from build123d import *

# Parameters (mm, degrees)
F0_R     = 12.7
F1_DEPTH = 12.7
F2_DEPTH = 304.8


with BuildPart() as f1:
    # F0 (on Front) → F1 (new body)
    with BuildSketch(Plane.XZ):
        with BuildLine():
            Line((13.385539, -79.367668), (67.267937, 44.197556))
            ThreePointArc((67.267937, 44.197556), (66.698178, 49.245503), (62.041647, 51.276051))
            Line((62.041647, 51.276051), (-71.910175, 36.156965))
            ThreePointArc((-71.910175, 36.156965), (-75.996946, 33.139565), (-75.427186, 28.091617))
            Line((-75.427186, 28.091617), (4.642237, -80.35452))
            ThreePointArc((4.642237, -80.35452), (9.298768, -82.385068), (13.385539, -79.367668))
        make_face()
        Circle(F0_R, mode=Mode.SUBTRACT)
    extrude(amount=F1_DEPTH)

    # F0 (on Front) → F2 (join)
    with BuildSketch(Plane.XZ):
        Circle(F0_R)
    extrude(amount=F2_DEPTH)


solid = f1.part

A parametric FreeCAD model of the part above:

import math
import FreeCAD as App
import Part
import Sketcher
Q = App.Units.Quantity

doc = App.newDocument("Part")
params = doc.addObject("Spreadsheet::Sheet", "Params")
for row, (alias, value) in enumerate([
    ("sketch1_diameter", "1 in"),
    ("sketch1_radius", "0.2 in"),
    ("pad1_length", "0.5 in"),
    ("sketch2_diameter", "1 in"),
    ("pad2_length", "12 in"),
], start=1):
    params.set(f"A{row}", alias)
    params.set(f"B{row}", "=" + value)
    params.setAlias(f"B{row}", alias)

body = doc.addObject("PartDesign::Body", "Body")

# Sketch on XZ plane
sketch1 = body.newObject("Sketcher::SketchObject", "Sketch")
sketch1.AttachmentSupport = (doc.getObject("XZ_Plane"), [""])
sketch1.MapMode = "FlatFace"
sketch1.addGeometry([
    Part.LineSegment(App.Vector(13.385539, -79.367668, 0), App.Vector(67.267937, 44.197556, 0)),  # 0
    Part.ArcOfCircle(Part.Circle(App.Vector(62.611407, 46.228104, 0), App.Vector(0, 0, 1), 5.08), math.radians(-23.560308), math.radians(96.439697)),  # 1
    Part.LineSegment(App.Vector(62.041647, 51.276051, 0), App.Vector(-71.910175, 36.156965, 0)),  # 2
    Part.ArcOfCircle(Part.Circle(App.Vector(-71.340415, 31.109018, 0), App.Vector(0, 0, 1), 5.08), math.radians(96.439694), math.radians(216.439703)),  # 3
    Part.LineSegment(App.Vector(-75.427186, 28.091617, 0), App.Vector(4.642237, -80.35452, 0)),  # 4
    Part.ArcOfCircle(Part.Circle(App.Vector(8.729008, -77.33712, 0), App.Vector(0, 0, 1), 5.08), math.radians(-143.560312), math.radians(-23.560306)),  # 5
    Part.Circle(App.Vector(0, 0, 0), App.Vector(0, 0, 1), 12.7),  # 6
], False)
sketch1.addConstraint([
    Sketcher.Constraint("Tangent", 0, 2, 1, 1),
    Sketcher.Constraint("Tangent", 1, 2, 2, 1),
    Sketcher.Constraint("Tangent", 2, 2, 3, 1),
    Sketcher.Constraint("Tangent", 3, 2, 4, 1),
    Sketcher.Constraint("Tangent", 4, 2, 5, 1),
    Sketcher.Constraint("Tangent", 5, 2, 0, 1),
    Sketcher.Constraint("Coincident", 6, 3, -1, 1),
    Sketcher.Constraint("Equal", 1, 3),
    Sketcher.Constraint("Equal", 3, 5),
    Sketcher.Constraint("Equal", 0, 2),
    Sketcher.Constraint("Equal", 2, 4),
    Sketcher.Constraint("Diameter", 6, Q("1 in")),
    Sketcher.Constraint("Radius", 1, Q("0.2 in")),
    Sketcher.Constraint("DistanceX", 5, 3, 1, 3, Q("53.882398 mm")),
    Sketcher.Constraint("DistanceY", 4, 2, 5, 3, Q("3.0174 mm")),
    Sketcher.Constraint("DistanceX", -1, 1, 5, 3, Q("8.729008 mm")),
    Sketcher.Constraint("DistanceY", 5, 3, -1, 1, Q("77.33712 mm")),
])
sketch1.setExpression("Constraints[11]", "Params.sketch1_diameter")
sketch1.setExpression("Constraints[12]", "Params.sketch1_radius")
pad1 = body.newObject("PartDesign::Pad", "Pad")
pad1.Profile = sketch1
pad1.setExpression("Length", "Params.pad1_length")

# Sketch on XZ plane
sketch2 = body.newObject("Sketcher::SketchObject", "Sketch001")
sketch2.AttachmentSupport = (doc.getObject("XZ_Plane"), [""])
sketch2.MapMode = "FlatFace"
sketch2.addGeometry(Part.Circle(App.Vector(0, 0, 0), App.Vector(0, 0, 1), 12.7), False)
sketch2.addConstraint([
    Sketcher.Constraint("Coincident", 0, 3, -1, 1),
    Sketcher.Constraint("Diameter", 0, Q("1 in")),
])
sketch2.setExpression("Constraints[1]", "Params.sketch2_diameter")
pad2 = body.newObject("PartDesign::Pad", "Pad001")
pad2.Profile = sketch2
pad2.setExpression("Length", "Params.pad2_length")

doc.recompute()
